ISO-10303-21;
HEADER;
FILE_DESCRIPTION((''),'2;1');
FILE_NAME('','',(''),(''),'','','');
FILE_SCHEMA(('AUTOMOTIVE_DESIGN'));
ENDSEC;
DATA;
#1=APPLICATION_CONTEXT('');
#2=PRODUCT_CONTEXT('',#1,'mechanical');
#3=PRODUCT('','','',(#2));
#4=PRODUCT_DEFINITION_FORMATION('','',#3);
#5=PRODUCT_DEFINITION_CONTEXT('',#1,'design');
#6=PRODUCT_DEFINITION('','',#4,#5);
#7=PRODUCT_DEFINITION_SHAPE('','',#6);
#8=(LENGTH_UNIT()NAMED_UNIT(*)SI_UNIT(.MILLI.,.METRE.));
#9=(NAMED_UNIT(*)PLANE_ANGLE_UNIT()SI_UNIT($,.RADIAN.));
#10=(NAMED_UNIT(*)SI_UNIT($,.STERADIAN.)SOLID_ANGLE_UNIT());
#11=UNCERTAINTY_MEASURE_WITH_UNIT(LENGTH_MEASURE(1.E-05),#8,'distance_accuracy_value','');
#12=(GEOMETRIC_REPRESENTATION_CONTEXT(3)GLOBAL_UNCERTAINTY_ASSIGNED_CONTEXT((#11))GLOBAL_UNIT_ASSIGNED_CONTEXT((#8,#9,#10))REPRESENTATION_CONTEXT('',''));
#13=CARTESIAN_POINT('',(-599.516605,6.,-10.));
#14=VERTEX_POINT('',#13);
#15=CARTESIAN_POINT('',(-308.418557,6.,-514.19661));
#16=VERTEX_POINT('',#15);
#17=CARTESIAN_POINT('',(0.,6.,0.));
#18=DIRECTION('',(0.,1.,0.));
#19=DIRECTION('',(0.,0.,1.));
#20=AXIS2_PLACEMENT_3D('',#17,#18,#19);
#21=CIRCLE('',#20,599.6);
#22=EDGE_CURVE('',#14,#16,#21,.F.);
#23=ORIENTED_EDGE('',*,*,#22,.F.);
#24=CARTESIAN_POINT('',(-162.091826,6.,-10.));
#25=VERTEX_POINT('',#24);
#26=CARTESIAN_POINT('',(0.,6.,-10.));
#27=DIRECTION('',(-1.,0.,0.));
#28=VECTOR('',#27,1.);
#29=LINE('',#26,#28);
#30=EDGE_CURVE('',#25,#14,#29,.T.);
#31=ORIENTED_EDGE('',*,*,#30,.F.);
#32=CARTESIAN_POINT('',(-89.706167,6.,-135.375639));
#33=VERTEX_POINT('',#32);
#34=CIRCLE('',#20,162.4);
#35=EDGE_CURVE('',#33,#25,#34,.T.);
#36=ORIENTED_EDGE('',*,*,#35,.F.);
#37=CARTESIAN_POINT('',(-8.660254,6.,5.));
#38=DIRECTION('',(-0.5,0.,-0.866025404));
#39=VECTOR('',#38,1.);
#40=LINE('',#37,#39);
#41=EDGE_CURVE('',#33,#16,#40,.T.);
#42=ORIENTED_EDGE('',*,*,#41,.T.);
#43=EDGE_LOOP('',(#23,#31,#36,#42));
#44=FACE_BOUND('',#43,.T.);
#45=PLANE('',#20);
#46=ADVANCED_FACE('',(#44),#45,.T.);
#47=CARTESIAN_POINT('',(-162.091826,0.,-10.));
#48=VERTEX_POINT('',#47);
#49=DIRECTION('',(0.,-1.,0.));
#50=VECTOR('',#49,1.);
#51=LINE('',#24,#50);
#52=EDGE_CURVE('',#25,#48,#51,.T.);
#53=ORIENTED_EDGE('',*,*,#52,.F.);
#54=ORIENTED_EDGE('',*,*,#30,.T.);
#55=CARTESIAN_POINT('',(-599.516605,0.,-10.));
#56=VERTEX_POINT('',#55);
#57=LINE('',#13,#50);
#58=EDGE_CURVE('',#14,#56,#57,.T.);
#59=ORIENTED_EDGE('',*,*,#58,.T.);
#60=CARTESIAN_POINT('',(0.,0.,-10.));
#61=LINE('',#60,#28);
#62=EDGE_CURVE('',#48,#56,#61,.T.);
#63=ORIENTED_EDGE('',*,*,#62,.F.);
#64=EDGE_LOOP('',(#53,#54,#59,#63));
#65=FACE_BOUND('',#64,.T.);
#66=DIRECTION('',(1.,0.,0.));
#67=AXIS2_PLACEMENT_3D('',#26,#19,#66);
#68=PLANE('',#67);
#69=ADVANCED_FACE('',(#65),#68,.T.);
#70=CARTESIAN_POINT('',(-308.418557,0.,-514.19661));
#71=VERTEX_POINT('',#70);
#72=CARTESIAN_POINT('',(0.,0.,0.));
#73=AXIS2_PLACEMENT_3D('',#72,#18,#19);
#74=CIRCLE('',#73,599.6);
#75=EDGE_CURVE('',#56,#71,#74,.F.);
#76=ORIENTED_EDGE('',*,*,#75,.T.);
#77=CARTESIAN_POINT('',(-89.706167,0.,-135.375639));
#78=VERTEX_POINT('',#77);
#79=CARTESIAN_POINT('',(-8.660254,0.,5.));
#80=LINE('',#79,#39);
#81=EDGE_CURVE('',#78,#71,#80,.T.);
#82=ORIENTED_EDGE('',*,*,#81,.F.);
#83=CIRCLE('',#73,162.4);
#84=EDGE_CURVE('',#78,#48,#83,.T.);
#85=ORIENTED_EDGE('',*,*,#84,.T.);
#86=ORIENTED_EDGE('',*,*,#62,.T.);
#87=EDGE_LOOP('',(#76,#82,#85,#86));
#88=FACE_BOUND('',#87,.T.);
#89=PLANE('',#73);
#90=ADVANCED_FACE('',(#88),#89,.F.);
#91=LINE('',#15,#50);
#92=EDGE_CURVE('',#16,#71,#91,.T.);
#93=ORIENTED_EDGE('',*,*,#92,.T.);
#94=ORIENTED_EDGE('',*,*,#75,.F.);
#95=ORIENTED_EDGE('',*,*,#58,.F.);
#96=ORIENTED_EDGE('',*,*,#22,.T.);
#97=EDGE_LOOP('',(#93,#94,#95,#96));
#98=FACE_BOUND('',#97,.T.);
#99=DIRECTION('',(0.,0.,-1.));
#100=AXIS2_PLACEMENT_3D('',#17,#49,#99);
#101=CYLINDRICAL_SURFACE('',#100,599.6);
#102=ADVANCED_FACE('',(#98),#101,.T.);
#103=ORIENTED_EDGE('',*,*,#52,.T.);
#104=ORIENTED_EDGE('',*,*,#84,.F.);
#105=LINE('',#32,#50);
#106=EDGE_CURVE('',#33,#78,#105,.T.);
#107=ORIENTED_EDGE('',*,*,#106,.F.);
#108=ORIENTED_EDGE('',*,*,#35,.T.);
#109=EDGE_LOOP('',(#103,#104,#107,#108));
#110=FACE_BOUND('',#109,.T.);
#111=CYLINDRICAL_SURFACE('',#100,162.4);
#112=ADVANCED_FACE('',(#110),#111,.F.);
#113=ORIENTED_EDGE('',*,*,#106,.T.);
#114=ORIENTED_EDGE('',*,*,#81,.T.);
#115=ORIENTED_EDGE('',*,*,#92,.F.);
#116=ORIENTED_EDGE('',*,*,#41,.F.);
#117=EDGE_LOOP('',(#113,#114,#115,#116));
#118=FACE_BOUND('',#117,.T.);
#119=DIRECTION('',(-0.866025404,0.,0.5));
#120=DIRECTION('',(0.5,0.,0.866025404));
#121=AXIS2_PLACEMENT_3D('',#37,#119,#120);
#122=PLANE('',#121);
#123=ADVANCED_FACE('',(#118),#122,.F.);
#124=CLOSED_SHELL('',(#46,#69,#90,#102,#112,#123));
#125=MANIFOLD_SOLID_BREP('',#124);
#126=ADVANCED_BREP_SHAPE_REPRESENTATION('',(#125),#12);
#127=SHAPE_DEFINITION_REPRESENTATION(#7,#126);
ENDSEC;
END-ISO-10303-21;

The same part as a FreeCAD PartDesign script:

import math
import FreeCAD as App
import Part
import Sketcher
from FreeCAD import Vector
Q = App.Units.Quantity

doc = App.newDocument("Part")
params = doc.addObject("Spreadsheet::Sheet", "Params")
for row, (alias, value) in enumerate([
    ("sketch1_radius", "599.6 mm"),
    ("sketch1_radius2", "162.4 mm"),
    ("sketch1_length", "10 mm"),
    ("pad1_length", "6 mm"),
], start=1):
    params.set(f"A{row}", alias)
    params.set(f"B{row}", "=" + value)
    params.setAlias(f"B{row}", alias)

body = doc.addObject("PartDesign::Body", "Body")

# Sketch on XZ plane
sketch1 = body.newObject("Sketcher::SketchObject", "Sketch")
sketch1.AttachmentSupport = (doc.getObject("XZ_Plane"), [""])
sketch1.MapMode = "FlatFace"
sketch1.addGeometry([
    Part.ArcOfCircle(Part.Circle(Vector(-0.000002, -0.000001, 0), Vector(0, 0, 1), 599.599998), math.radians(-150.477789), math.radians(-149.522211)),  # 0
    Part.ArcOfCircle(Part.Circle(Vector(0, 0, 0), Vector(0, 0, 1), 599.6), math.radians(-179.044389), math.radians(-150.477789)),  # 1
    Part.LineSegment(Vector(-599.516605, -10, 0), Vector(-162.091826, -10, 0)),  # 2
    Part.ArcOfCircle(Part.Circle(Vector(0, 0, 0), Vector(0, 0, 1), 162.4), math.radians(-176.469701), math.radians(-123.530299)),  # 3
    Part.LineSegment(Vector(-89.706167, -135.375639, 0), Vector(-171.260254, -276.631461, 0)),  # 4
    Part.LineSegment(Vector(-171.260254, -276.631461, 0), Vector(-176.260254, -285.291715, 0)),  # 5
    Part.LineSegment(Vector(-176.260254, -285.291715, 0), Vector(-308.418557, -514.19661, 0)),  # 6
    Part.ArcOfCircle(Part.Circle(Vector(0, 0, 0), Vector(0, 0, 1), 599.6), math.radians(-149.522211), math.radians(-120.955611)),  # 7
], False)
sketch1.addConstraint([
    Sketcher.Constraint("Coincident", 0, 1, 1, 2),
    Sketcher.Constraint("Coincident", 1, 1, 2, 1),
    Sketcher.Constraint("Coincident", 2, 2, 3, 1),
    Sketcher.Constraint("Coincident", 3, 2, 4, 1),
    Sketcher.Constraint("Coincident", 4, 2, 5, 1),
    Sketcher.Constraint("Coincident", 5, 2, 6, 1),
    Sketcher.Constraint("Coincident", 6, 2, 7, 2),
    Sketcher.Constraint("Coincident", 7, 1, 0, 2),
    Sketcher.Constraint("Horizontal", 2),
    Sketcher.Constraint("Coincident", 0, 3, -1, 1),
    Sketcher.Constraint("Coincident", 1, 3, -1, 1),
    Sketcher.Constraint("Coincident", 3, 3, -1, 1),
    Sketcher.Constraint("Coincident", 7, 3, -1, 1),
    Sketcher.Constraint("Parallel", 4, 5),
    Sketcher.Constraint("Parallel", 5, 6),
    Sketcher.Constraint("Radius", 1, Q("599.6 mm")),
    Sketcher.Constraint("Radius", 3, Q("162.4 mm")),
    Sketcher.Constraint("Angle", 4, Q("-120 deg")),
    Sketcher.Constraint("Distance", 5, Q("10 mm")),
    Sketcher.Constraint("DistanceY", 2, 2, -1, 1, Q("10 mm")),
    Sketcher.Constraint("DistanceX", 0, 1, 7, 1, Q("5 mm")),
    Sketcher.Constraint("DistanceY", 0, 1, -1, 1, Q("295.459449 mm")),
    Sketcher.Constraint("DistanceY", 3, 2, -1, 1, Q("135.375639 mm")),
    Sketcher.Constraint("DistanceY", 4, 2, -1, 1, Q("276.631461 mm")),
])
sketch1.setExpression("Constraints[15]", "Params.sketch1_radius")
sketch1.setExpression("Constraints[16]", "Params.sketch1_radius2")
sketch1.setExpression("Constraints[18]", "Params.sketch1_length")
pad1 = body.newObject("PartDesign::Pad", "Pad")
pad1.Profile = sketch1
pad1.setExpression("Length", "Params.pad1_length")
pad1.Reversed = True

doc.recompute()
